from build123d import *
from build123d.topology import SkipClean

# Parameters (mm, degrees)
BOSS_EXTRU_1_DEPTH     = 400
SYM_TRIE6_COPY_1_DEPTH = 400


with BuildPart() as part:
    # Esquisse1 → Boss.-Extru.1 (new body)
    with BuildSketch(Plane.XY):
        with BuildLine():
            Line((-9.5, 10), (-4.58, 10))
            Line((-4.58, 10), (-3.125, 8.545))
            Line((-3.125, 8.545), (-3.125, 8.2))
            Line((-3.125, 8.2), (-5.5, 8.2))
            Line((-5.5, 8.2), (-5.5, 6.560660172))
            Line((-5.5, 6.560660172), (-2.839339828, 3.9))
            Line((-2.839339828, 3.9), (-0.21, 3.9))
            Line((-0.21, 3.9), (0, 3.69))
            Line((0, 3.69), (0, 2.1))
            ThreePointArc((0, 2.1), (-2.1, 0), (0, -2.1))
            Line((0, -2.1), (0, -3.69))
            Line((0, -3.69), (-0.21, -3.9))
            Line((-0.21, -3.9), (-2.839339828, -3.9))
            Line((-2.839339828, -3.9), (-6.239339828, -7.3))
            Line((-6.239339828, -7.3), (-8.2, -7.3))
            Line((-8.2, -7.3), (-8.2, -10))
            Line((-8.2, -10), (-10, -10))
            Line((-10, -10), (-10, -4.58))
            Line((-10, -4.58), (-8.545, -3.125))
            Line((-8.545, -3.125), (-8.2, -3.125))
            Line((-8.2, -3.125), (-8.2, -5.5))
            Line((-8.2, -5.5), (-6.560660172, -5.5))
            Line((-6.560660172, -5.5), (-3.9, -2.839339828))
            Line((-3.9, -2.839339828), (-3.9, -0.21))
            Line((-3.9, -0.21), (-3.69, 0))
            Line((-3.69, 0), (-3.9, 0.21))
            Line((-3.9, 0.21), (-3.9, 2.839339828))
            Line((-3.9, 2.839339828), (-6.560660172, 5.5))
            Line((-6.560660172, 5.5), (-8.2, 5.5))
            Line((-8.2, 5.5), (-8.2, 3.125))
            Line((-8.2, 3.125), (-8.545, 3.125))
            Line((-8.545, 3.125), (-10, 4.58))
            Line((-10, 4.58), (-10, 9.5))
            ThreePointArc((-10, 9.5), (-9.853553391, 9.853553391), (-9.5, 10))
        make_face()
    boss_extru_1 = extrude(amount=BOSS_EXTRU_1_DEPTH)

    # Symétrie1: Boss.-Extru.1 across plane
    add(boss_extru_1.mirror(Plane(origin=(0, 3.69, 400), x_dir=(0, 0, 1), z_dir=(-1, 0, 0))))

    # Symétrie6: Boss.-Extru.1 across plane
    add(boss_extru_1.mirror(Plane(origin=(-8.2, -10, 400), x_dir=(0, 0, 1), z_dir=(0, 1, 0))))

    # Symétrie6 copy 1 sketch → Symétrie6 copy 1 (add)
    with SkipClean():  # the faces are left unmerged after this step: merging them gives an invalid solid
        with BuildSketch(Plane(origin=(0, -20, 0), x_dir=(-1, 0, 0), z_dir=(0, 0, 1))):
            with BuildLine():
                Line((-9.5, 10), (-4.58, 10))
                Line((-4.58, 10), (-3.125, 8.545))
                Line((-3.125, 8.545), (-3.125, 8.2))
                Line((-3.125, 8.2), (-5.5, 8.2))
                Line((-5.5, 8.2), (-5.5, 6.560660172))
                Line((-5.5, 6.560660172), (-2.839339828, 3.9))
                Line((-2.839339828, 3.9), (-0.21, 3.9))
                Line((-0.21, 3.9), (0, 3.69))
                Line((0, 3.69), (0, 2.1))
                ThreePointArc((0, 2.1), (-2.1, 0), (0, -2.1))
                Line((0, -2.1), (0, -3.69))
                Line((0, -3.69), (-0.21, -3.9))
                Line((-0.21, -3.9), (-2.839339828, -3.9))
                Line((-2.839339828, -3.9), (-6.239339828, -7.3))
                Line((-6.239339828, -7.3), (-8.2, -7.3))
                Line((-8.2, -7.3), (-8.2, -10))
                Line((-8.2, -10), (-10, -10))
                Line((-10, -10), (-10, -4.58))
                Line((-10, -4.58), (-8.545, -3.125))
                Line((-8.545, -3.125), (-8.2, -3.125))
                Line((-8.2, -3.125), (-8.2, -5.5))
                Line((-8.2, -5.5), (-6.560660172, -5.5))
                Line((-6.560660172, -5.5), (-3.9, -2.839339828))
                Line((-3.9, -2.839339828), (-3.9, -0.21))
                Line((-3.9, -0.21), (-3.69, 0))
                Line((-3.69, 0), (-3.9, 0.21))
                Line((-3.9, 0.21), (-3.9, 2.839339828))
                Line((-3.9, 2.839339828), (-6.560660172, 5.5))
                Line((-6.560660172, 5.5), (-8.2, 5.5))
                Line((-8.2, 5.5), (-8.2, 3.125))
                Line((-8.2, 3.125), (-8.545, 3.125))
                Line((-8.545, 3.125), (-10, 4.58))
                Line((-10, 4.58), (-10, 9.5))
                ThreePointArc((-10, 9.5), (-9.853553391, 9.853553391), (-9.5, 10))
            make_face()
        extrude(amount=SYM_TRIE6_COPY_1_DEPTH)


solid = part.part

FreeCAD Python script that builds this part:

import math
import FreeCAD as App
import Part
import Sketcher
from FreeCAD import Vector
Q = App.Units.Quantity

doc = App.newDocument("Part")
body = doc.addObject("PartDesign::Body", "Body")

# Sketch on XY plane
sketch1 = body.newObject("Sketcher::SketchObject", "Sketch")
sketch1.AttachmentSupport = (doc.getObject("XY_Plane"), [""])
sketch1.MapMode = "FlatFace"
sketch1.addGeometry([
    Part.LineSegment(Vector(-4.58, 10, 0), Vector(-9.5, 10, 0)),  # 0
    Part.ArcOfCircle(Part.Circle(Vector(-9.5, 9.5, 0), Vector(0, 0, 1), 0.5), math.radians(90), math.radians(180)),  # 1
    Part.LineSegment(Vector(-10, 9.5, 0), Vector(-10, 4.58, 0)),  # 2
    Part.LineSegment(Vector(-10, 4.58, 0), Vector(-8.545, 3.125, 0)),  # 3
    Part.LineSegment(Vector(-8.545, 3.125, 0), Vector(-8.2, 3.125, 0)),  # 4
    Part.LineSegment(Vector(-8.2, 3.125, 0), Vector(-8.2, 5.5, 0)),  # 5
    Part.LineSegment(Vector(-8.2, 5.5, 0), Vector(-6.56066, 5.5, 0)),  # 6
    Part.LineSegment(Vector(-6.56066, 5.5, 0), Vector(-3.9, 2.83934, 0)),  # 7
    Part.LineSegment(Vector(-3.9, 2.83934, 0), Vector(-3.9, 0.21, 0)),  # 8
    Part.LineSegment(Vector(-3.9, 0.21, 0), Vector(-3.69, 0, 0)),  # 9
    Part.LineSegment(Vector(-3.69, 0, 0), Vector(-3.9, -0.21, 0)),  # 10
    Part.LineSegment(Vector(-3.9, -0.21, 0), Vector(-3.9, -2.83934, 0)),  # 11
    Part.LineSegment(Vector(-3.9, -2.83934, 0), Vector(-6.56066, -5.5, 0)),  # 12
    Part.LineSegment(Vector(-6.56066, -5.5, 0), Vector(-8.2, -5.5, 0)),  # 13
    Part.LineSegment(Vector(-8.2, -5.5, 0), Vector(-8.2, -3.125, 0)),  # 14
    Part.LineSegment(Vector(-8.2, -3.125, 0), Vector(-8.545, -3.125, 0)),  # 15
    Part.LineSegment(Vector(-8.545, -3.125, 0), Vector(-10, -4.58, 0)),  # 16
    Part.LineSegment(Vector(-10, -4.58, 0), Vector(-10, -10, 0)),  # 17
    Part.LineSegment(Vector(-10, -10, 0), Vector(-8.2, -10, 0)),  # 18
    Part.LineSegment(Vector(-8.2, -10, 0), Vector(-8.2, -7.3, 0)),  # 19
    Part.LineSegment(Vector(-8.2, -7.3, 0), Vector(-6.23934, -7.3, 0)),  # 20
    Part.LineSegment(Vector(-6.23934, -7.3, 0), Vector(-2.83934, -3.9, 0)),  # 21
    Part.LineSegment(Vector(-2.83934, -3.9, 0), Vector(-0.21, -3.9, 0)),  # 22
    Part.LineSegment(Vector(-0.21, -3.9, 0), Vector(0, -3.69, 0)),  # 23
    Part.LineSegment(Vector(0, -3.69, 0), Vector(0, -2.1, 0)),  # 24
    Part.ArcOfCircle(Part.Circle(Vector(0, 0, 0), Vector(0, 0, 1), 2.1), math.radians(90), math.radians(270)),  # 25
    Part.LineSegment(Vector(0, 2.1, 0), Vector(0, 3.69, 0)),  # 26
    Part.LineSegment(Vector(0, 3.69, 0), Vector(-0.21, 3.9, 0)),  # 27
    Part.LineSegment(Vector(-0.21, 3.9, 0), Vector(-2.83934, 3.9, 0)),  # 28
    Part.LineSegment(Vector(-2.83934, 3.9, 0), Vector(-5.5, 6.56066, 0)),  # 29
    Part.LineSegment(Vector(-5.5, 6.56066, 0), Vector(-5.5, 8.2, 0)),  # 30
    Part.LineSegment(Vector(-5.5, 8.2, 0), Vector(-3.125, 8.2, 0)),  # 31
    Part.LineSegment(Vector(-3.125, 8.2, 0), Vector(-3.125, 8.545, 0)),  # 32
    Part.LineSegment(Vector(-3.125, 8.545, 0), Vector(-4.58, 10, 0)),  # 33
], False)
sketch1.addConstraint([
    Sketcher.Constraint("Tangent", 0, 2, 1, 1),
    Sketcher.Constraint("Tangent", 1, 2, 2, 1),
    Sketcher.Constraint("Coincident", 2, 2, 3, 1),
    Sketcher.Constraint("Coincident", 3, 2, 4, 1),
    Sketcher.Constraint("Coincident", 4, 2, 5, 1),
    Sketcher.Constraint("Coincident", 5, 2, 6, 1),
    Sketcher.Constraint("Coincident", 6, 2, 7, 1),
    Sketcher.Constraint("Coincident", 7, 2, 8, 1),
    Sketcher.Constraint("Coincident", 8, 2, 9, 1),
    Sketcher.Constraint("Coincident", 9, 2, 10, 1),
    Sketcher.Constraint("Coincident", 10, 2, 11, 1),
    Sketcher.Constraint("Coincident", 11, 2, 12, 1),
    Sketcher.Constraint("Coincident", 12, 2, 13, 1),
    Sketcher.Constraint("Coincident", 13, 2, 14, 1),
    Sketcher.Constraint("Coincident", 14, 2, 15, 1),
    Sketcher.Constraint("Coincident", 15, 2, 16, 1),
    Sketcher.Constraint("Coincident", 16, 2, 17, 1),
    Sketcher.Constraint("Coincident", 17, 2, 18, 1),
    Sketcher.Constraint("Coincident", 18, 2, 19, 1),
    Sketcher.Constraint("Coincident", 19, 2, 20, 1),
    Sketcher.Constraint("Coincident", 20, 2, 21, 1),
    Sketcher.Constraint("Coincident", 21, 2, 22, 1),
    Sketcher.Constraint("Coincident", 22, 2, 23, 1),
    Sketcher.Constraint("Coincident", 23, 2, 24, 1),
    Sketcher.Constraint("Coincident", 24, 2, 25, 2),
    Sketcher.Constraint("Coincident", 25, 1, 26, 1),
    Sketcher.Constraint("Coincident", 26, 2, 27, 1),
    Sketcher.Constraint("Coincident", 27, 2, 28, 1),
    Sketcher.Constraint("Coincident", 28, 2, 29, 1),
    Sketcher.Constraint("Coincident", 29, 2, 30, 1),
    Sketcher.Constraint("Coincident", 30, 2, 31, 1),
    Sketcher.Constraint("Coincident", 31, 2, 32, 1),
    Sketcher.Constraint("Coincident", 32, 2, 33, 1),
    Sketcher.Constraint("Coincident", 33, 2, 0, 1),
    Sketcher.Constraint("Horizontal", 0),
    Sketcher.Constraint("Vertical", 2),
    Sketcher.Constraint("Horizontal", 4),
    Sketcher.Constraint("Vertical", 5),
    Sketcher.Constraint("Horizontal", 6),
    Sketcher.Constraint("Vertical", 8),
    Sketcher.Constraint("Vertical", 11),
    Sketcher.Constraint("Horizontal", 13),
    Sketcher.Constraint("Vertical", 14),
    Sketcher.Constraint("Horizontal", 15),
    Sketcher.Constraint("Vertical", 17),
    Sketcher.Constraint("Horizontal", 18),
    Sketcher.Constraint("Vertical", 19),
    Sketcher.Constraint("Horizontal", 20),
    Sketcher.Constraint("Horizontal", 22),
    Sketcher.Constraint("Vertical", 24),
    Sketcher.Constraint("Vertical", 26),
    Sketcher.Constraint("Horizontal", 28),
    Sketcher.Constraint("Vertical", 30),
    Sketcher.Constraint("Horizontal", 31),
    Sketcher.Constraint("Vertical", 32),
    Sketcher.Constraint("Coincident", 25, 3, -1, 1),
    Sketcher.Constraint("Symmetric", 23, 2, 26, 2, -1, 1),
    Sketcher.Constraint("Symmetric", 8, 2, 10, 2, -1),
    Sketcher.Constraint("Symmetric", 6, 2, 12, 2, -1),
    Sketcher.Constraint("Symmetric", 4, 2, 14, 2, -1),
    Sketcher.Constraint("Symmetric", 2, 2, 16, 2, -1),
    Sketcher.Constraint("Symmetric", 22, 2, 27, 2, -1),
    Sketcher.Constraint("PointOnObject", 9, 2, -1),
    Sketcher.Constraint("PointOnObject", 23, 2, -2),
    Sketcher.Constraint("Parallel", 3, 7),
    Sketcher.Constraint("Parallel", 7, 9),
    Sketcher.Constraint("Perpendicular", 9, 10),
    Sketcher.Constraint("Parallel", 10, 12),
    Sketcher.Constraint("Parallel", 12, 16),
    Sketcher.Constraint("Parallel", 16, 21),
    Sketcher.Constraint("Parallel", 21, 23),
    Sketcher.Constraint("Parallel", 27, 29),
    Sketcher.Constraint("Parallel", 29, 33),
    Sketcher.Constraint("Vertical", 14, 2, 18, 2),
    Sketcher.Constraint("Vertical", 21, 2, 28, 2),
    Sketcher.Constraint("Equal", 0, 2),
    Sketcher.Constraint("Equal", 31, 5),
    Sketcher.Constraint("Equal", 28, 8),
    Sketcher.Constraint("Equal", 13, 30),
    Sketcher.Constraint("Equal", 15, 32),
    Sketcher.Constraint("Equal", 10, 23),
    Sketcher.Constraint("Equal", 12, 29),
    Sketcher.Constraint("Equal", 16, 33),
    Sketcher.Constraint("Radius", 1, Q("0.5 mm")),
    Sketcher.Constraint("Radius", 25, Q("2.1 mm")),
    Sketcher.Constraint("DistanceX", 18, 1, 18, 2, Q("1.8 mm")),
    Sketcher.Constraint("DistanceY", 19, 1, 19, 2, Q("2.7 mm")),
    Sketcher.Constraint("DistanceY", -1, 1, 0, 2, Q("10 mm")),
    Sketcher.Constraint("DistanceY", 17, 2, -1, 1, Q("10 mm")),
    Sketcher.Constraint("DistanceY", 5, 2, 1, 3, Q("4 mm")),
    Sketcher.Constraint("DistanceX", 0, 2, 0, 1, Q("4.92 mm")),
    Sketcher.Constraint("DistanceY", 24, 1, 24, 2, Q("1.59 mm")),
    Sketcher.Constraint("DistanceX", 7, 2, -1, 1, Q("3.9 mm")),
    Sketcher.Constraint("DistanceX", 4, 1, 4, 2, Q("0.345 mm")),
    Sketcher.Constraint("DistanceX", 6, 1, 6, 2, Q("1.63934 mm")),
])
pad1 = body.newObject("PartDesign::Pad", "Pad")
pad1.Profile = sketch1
pad1.Length = 400
doc.recompute()

mirrored = body.newObject("PartDesign::Mirrored", "Mirrored")
mirrored.Originals = [pad1]
mirrored.MirrorPlane = (doc.getObject("YZ_Plane"), [""])
body.Tip = mirrored
doc.recompute()

datumplane = body.newObject("PartDesign::Plane", "DatumPlane")
datumplane.AttachmentSupport = (doc.getObject("XZ_Plane"), [""])
datumplane.MapMode = "FlatFace"
datumplane.AttachmentOffset = App.Placement(Vector(0, 0, 10), App.Rotation())
mirrored2 = body.newObject("PartDesign::Mirrored", "Mirrored001")
mirrored2.Originals = [pad1]
mirrored2.MirrorPlane = (datumplane, [""])
body.Tip = mirrored2

# Sketch on XY plane
sketch2 = body.newObject("Sketcher::SketchObject", "Sketch001")
sketch2.AttachmentSupport = (doc.getObject("XY_Plane"), [""])
sketch2.MapMode = "FlatFace"
sketch2.addGeometry([
    Part.LineSegment(Vector(4.58, -30, 0), Vector(9.5, -30, 0)),  # 0
    Part.ArcOfCircle(Part.Circle(Vector(9.5, -29.5, 0), Vector(0, 0, 1), 0.5), math.radians(-90), math.radians(0)),  # 1
    Part.LineSegment(Vector(10, -29.5, 0), Vector(10, -24.58, 0)),  # 2
    Part.LineSegment(Vector(10, -24.58, 0), Vector(8.545, -23.125, 0)),  # 3
    Part.LineSegment(Vector(8.545, -23.125, 0), Vector(8.2, -23.125, 0)),  # 4
    Part.LineSegment(Vector(8.2, -23.125, 0), Vector(8.2, -25.5, 0)),  # 5
    Part.LineSegment(Vector(8.2, -25.5, 0), Vector(6.56066, -25.5, 0)),  # 6
    Part.LineSegment(Vector(6.56066, -25.5, 0), Vector(3.9, -22.83934, 0)),  # 7
    Part.LineSegment(Vector(3.9, -22.83934, 0), Vector(3.9, -20.21, 0)),  # 8
    Part.LineSegment(Vector(3.9, -20.21, 0), Vector(3.69, -20, 0)),  # 9
    Part.LineSegment(Vector(3.69, -20, 0), Vector(3.9, -19.79, 0)),  # 10
    Part.LineSegment(Vector(3.9, -19.79, 0), Vector(3.9, -17.16066, 0)),  # 11
    Part.LineSegment(Vector(3.9, -17.16066, 0), Vector(6.56066, -14.5, 0)),  # 12
    Part.LineSegment(Vector(6.56066, -14.5, 0), Vector(8.2, -14.5, 0)),  # 13
    Part.LineSegment(Vector(8.2, -14.5, 0), Vector(8.2, -16.875, 0)),  # 14
    Part.LineSegment(Vector(8.2, -16.875, 0), Vector(8.545, -16.875, 0)),  # 15
    Part.LineSegment(Vector(8.545, -16.875, 0), Vector(10, -15.42, 0)),  # 16
    Part.LineSegment(Vector(10, -15.42, 0), Vector(10, -10, 0)),  # 17
    Part.LineSegment(Vector(10, -10, 0), Vector(8.2, -10, 0)),  # 18
    Part.LineSegment(Vector(8.2, -10, 0), Vector(8.2, -12.7, 0)),  # 19
    Part.LineSegment(Vector(8.2, -12.7, 0), Vector(6.23934, -12.7, 0)),  # 20
    Part.LineSegment(Vector(6.23934, -12.7, 0), Vector(2.83934, -16.1, 0)),  # 21
    Part.LineSegment(Vector(2.83934, -16.1, 0), Vector(0.21, -16.1, 0)),  # 22
    Part.LineSegment(Vector(0.21, -16.1, 0), Vector(0, -16.31, 0)),  # 23
    Part.LineSegment(Vector(0, -16.31, 0), Vector(0, -17.9, 0)),  # 24
    Part.ArcOfCircle(Part.Circle(Vector(0, -20, 0), Vector(0, 0, 1), 2.1), math.radians(-90), math.radians(90)),  # 25
    Part.LineSegment(Vector(0, -22.1, 0), Vector(0, -23.69, 0)),  # 26
    Part.LineSegment(Vector(0, -23.69, 0), Vector(0.21, -23.9, 0)),  # 27
    Part.LineSegment(Vector(0.21, -23.9, 0), Vector(2.83934, -23.9, 0)),  # 28
    Part.LineSegment(Vector(2.83934, -23.9, 0), Vector(5.5, -26.56066, 0)),  # 29
    Part.LineSegment(Vector(5.5, -26.56066, 0), Vector(5.5, -28.2, 0)),  # 30
    Part.LineSegment(Vector(5.5, -28.2, 0), Vector(3.125, -28.2, 0)),  # 31
    Part.LineSegment(Vector(3.125, -28.2, 0), Vector(3.125, -28.545, 0)),  # 32
    Part.LineSegment(Vector(3.125, -28.545, 0), Vector(4.58, -30, 0)),  # 33
], False)
sketch2.addConstraint([
    Sketcher.Constraint("Tangent", 0, 2, 1, 1),
    Sketcher.Constraint("Tangent", 1, 2, 2, 1),
    Sketcher.Constraint("Coincident", 2, 2, 3, 1),
    Sketcher.Constraint("Coincident", 3, 2, 4, 1),
    Sketcher.Constraint("Coincident", 4, 2, 5, 1),
    Sketcher.Constraint("Coincident", 5, 2, 6, 1),
    Sketcher.Constraint("Coincident", 6, 2, 7, 1),
    Sketcher.Constraint("Coincident", 7, 2, 8, 1),
    Sketcher.Constraint("Coincident", 8, 2, 9, 1),
    Sketcher.Constraint("Coincident", 9, 2, 10, 1),
    Sketcher.Constraint("Coincident", 10, 2, 11, 1),
    Sketcher.Constraint("Coincident", 11, 2, 12, 1),
    Sketcher.Constraint("Coincident", 12, 2, 13, 1),
    Sketcher.Constraint("Coincident", 13, 2, 14, 1),
    Sketcher.Constraint("Coincident", 14, 2, 15, 1),
    Sketcher.Constraint("Coincident", 15, 2, 16, 1),
    Sketcher.Constraint("Coincident", 16, 2, 17, 1),
    Sketcher.Constraint("Coincident", 17, 2, 18, 1),
    Sketcher.Constraint("Coincident", 18, 2, 19, 1),
    Sketcher.Constraint("Coincident", 19, 2, 20, 1),
    Sketcher.Constraint("Coincident", 20, 2, 21, 1),
    Sketcher.Constraint("Coincident", 21, 2, 22, 1),
    Sketcher.Constraint("Coincident", 22, 2, 23, 1),
    Sketcher.Constraint("Coincident", 23, 2, 24, 1),
    Sketcher.Constraint("Coincident", 24, 2, 25, 2),
    Sketcher.Constraint("Coincident", 25, 1, 26, 1),
    Sketcher.Constraint("Coincident", 26, 2, 27, 1),
    Sketcher.Constraint("Coincident", 27, 2, 28, 1),
    Sketcher.Constraint("Coincident", 28, 2, 29, 1),
    Sketcher.Constraint("Coincident", 29, 2, 30, 1),
    Sketcher.Constraint("Coincident", 30, 2, 31, 1),
    Sketcher.Constraint("Coincident", 31, 2, 32, 1),
    Sketcher.Constraint("Coincident", 32, 2, 33, 1),
    Sketcher.Constraint("Coincident", 33, 2, 0, 1),
    Sketcher.Constraint("Horizontal", 0),
    Sketcher.Constraint("Vertical", 2),
    Sketcher.Constraint("Horizontal", 4),
    Sketcher.Constraint("Vertical", 5),
    Sketcher.Constraint("Horizontal", 6),
    Sketcher.Constraint("Vertical", 8),
    Sketcher.Constraint("Vertical", 11),
    Sketcher.Constraint("Horizontal", 13),
    Sketcher.Constraint("Vertical", 14),
    Sketcher.Constraint("Horizontal", 15),
    Sketcher.Constraint("Vertical", 17),
    Sketcher.Constraint("Horizontal", 18),
    Sketcher.Constraint("Vertical", 19),
    Sketcher.Constraint("Horizontal", 20),
    Sketcher.Constraint("Horizontal", 22),
    Sketcher.Constraint("Vertical", 24),
    Sketcher.Constraint("Vertical", 26),
    Sketcher.Constraint("Horizontal", 28),
    Sketcher.Constraint("Vertical", 30),
    Sketcher.Constraint("Horizontal", 31),
    Sketcher.Constraint("Vertical", 32),
    Sketcher.Constraint("PointOnObject", 25, 3, -2),
    Sketcher.Constraint("PointOnObject", 23, 2, -2),
    Sketcher.Constraint("PointOnObject", 25, 1, -2),
    Sketcher.Constraint("Parallel", 3, 7),
    Sketcher.Constraint("Parallel", 7, 9),
    Sketcher.Constraint("Perpendicular", 9, 10),
    Sketcher.Constraint("Parallel", 10, 12),
    Sketcher.Constraint("Parallel", 12, 16),
    Sketcher.Constraint("Parallel", 16, 21),
    Sketcher.Constraint("Parallel", 21, 23),
    Sketcher.Constraint("Perpendicular", 23, 27),
    Sketcher.Constraint("Parallel", 27, 29),
    Sketcher.Constraint("Parallel", 29, 33),
    Sketcher.Constraint("Horizontal", 25, 3, 9, 2),
    Sketcher.Constraint("Vertical", 8, 2, 10, 2),
    Sketcher.Constraint("Vertical", 6, 2, 12, 2),
    Sketcher.Constraint("Vertical", 5, 2, 13, 2),
    Sketcher.Constraint("Vertical", 3, 2, 15, 2),
    Sketcher.Constraint("Vertical", 2, 2, 16, 2),
    Sketcher.Constraint("Vertical", 14, 2, 18, 2),
    Sketcher.Constraint("Vertical", 22, 2, 27, 2),
    Sketcher.Constraint("Vertical", 21, 2, 28, 2),
    Sketcher.Constraint("Equal", 0, 2),
    Sketcher.Constraint("Equal", 31, 5),
    Sketcher.Constraint("Equal", 28, 8),
    Sketcher.Constraint("Equal", 8, 11),
    Sketcher.Constraint("Equal", 5, 14),
    Sketcher.Constraint("Equal", 24, 26),
    Sketcher.Constraint("Equal", 13, 30),
    Sketcher.Constraint("Equal", 15, 32),
    Sketcher.Constraint("Equal", 9, 10),
    Sketcher.Constraint("Equal", 10, 23),
    Sketcher.Constraint("Equal", 12, 29),
    Sketcher.Constraint("Equal", 16, 33),
    Sketcher.Constraint("Radius", 1, Q("0.5 mm")),
    Sketcher.Constraint("Radius", 25, Q("2.1 mm")),
    Sketcher.Constraint("DistanceX", 18, 2, 18, 1, Q("1.8 mm")),
    Sketcher.Constraint("DistanceY", 19, 2, 19, 1, Q("2.7 mm")),
    Sketcher.Constraint("DistanceY", 25, 3, -1, 1, Q("20 mm")),
    Sketcher.Constraint("DistanceY", 0, 2, -1, 1, Q("30 mm")),
    Sketcher.Constraint("DistanceY", 17, 2, -1, 1, Q("10 mm")),
    Sketcher.Constraint("DistanceY", 1, 3, 5, 2, Q("4 mm")),
    Sketcher.Constraint("DistanceX", 0, 1, 0, 2, Q("4.92 mm")),
    Sketcher.Constraint("DistanceY", 24, 2, 24, 1, Q("1.59 mm")),
    Sketcher.Constraint("DistanceX", -1, 1, 7, 2, Q("3.9 mm")),
    Sketcher.Constraint("DistanceX", 4, 2, 4, 1, Q("0.345 mm")),
    Sketcher.Constraint("DistanceX", 6, 2, 6, 1, Q("1.63934 mm")),
])
pad2 = body.newObject("PartDesign::Pad", "Pad001")
pad2.Profile = sketch2
pad2.Length = 400

doc.recompute()
